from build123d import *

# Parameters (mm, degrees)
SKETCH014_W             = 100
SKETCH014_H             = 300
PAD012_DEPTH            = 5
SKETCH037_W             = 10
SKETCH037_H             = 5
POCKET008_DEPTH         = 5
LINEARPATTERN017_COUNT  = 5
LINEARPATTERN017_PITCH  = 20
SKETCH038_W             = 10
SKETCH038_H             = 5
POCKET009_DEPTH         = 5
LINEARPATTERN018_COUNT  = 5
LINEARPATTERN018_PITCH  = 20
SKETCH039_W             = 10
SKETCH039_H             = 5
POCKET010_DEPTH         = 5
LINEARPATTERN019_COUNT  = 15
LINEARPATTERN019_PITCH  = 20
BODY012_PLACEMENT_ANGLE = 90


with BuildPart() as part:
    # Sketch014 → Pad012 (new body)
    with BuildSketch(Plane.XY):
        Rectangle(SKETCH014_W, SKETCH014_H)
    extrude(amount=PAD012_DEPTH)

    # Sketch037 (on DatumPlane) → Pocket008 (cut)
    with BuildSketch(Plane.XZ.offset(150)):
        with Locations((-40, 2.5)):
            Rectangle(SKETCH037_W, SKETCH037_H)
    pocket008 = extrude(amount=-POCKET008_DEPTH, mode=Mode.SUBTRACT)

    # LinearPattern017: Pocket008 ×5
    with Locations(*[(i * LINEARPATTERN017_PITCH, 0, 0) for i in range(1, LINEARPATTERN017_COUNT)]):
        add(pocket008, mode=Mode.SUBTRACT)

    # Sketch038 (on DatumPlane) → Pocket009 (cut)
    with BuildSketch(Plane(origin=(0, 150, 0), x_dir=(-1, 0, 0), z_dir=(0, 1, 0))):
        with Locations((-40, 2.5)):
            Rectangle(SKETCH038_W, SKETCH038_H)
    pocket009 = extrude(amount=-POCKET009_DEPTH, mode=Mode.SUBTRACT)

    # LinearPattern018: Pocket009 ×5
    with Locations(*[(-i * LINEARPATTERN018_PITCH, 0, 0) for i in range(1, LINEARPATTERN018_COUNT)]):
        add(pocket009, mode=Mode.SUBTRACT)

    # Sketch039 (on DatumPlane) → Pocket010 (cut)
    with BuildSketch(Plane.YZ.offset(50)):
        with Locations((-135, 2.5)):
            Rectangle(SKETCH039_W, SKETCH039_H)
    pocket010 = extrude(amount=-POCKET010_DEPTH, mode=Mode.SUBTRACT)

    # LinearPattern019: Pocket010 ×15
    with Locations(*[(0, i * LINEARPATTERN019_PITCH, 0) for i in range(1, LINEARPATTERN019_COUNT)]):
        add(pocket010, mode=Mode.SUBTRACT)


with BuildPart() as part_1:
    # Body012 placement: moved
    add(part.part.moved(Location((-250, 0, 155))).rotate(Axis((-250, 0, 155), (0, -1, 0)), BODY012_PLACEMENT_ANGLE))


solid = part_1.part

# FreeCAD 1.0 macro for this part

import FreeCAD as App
import Part
import Sketcher
from FreeCAD import Vector

doc = App.newDocument("Part")
body = doc.addObject("PartDesign::Body", "Body")

# Sketch on XY plane
sketch1 = body.newObject("Sketcher::SketchObject", "Sketch")
sketch1.AttachmentSupport = (doc.getObject("XY_Plane"), [""])
sketch1.MapMode = "FlatFace"
sketch1.addGeometry(Part.LineSegment(Vector(-50, 150, 0), Vector(-50, -150, 0)), False)
sketch1.addGeometry(Part.LineSegment(Vector(-50, -150, 0), Vector(50, -150, 0)), False)
sketch1.addGeometry(Part.LineSegment(Vector(50, -150, 0), Vector(50, 150, 0)), False)
sketch1.addGeometry(Part.LineSegment(Vector(50, 150, 0), Vector(-50, 150, 0)), False)
sketch1.addConstraint(Sketcher.Constraint("Coincident", 0, 2, 1, 1))
sketch1.addConstraint(Sketcher.Constraint("Coincident", 1, 2, 2, 1))
sketch1.addConstraint(Sketcher.Constraint("Coincident", 2, 2, 3, 1))
sketch1.addConstraint(Sketcher.Constraint("Coincident", 3, 2, 0, 1))
sketch1.addConstraint(Sketcher.Constraint("Vertical", 0))
sketch1.addConstraint(Sketcher.Constraint("Horizontal", 1))
sketch1.addConstraint(Sketcher.Constraint("Vertical", 2))
sketch1.addConstraint(Sketcher.Constraint("Horizontal", 3))
sketch1.addConstraint(Sketcher.Constraint("Symmetric", 0, 2, 2, 2, -1, 1))
sketch1.addConstraint(Sketcher.Constraint("DistanceX", 1, 1, 1, 2, 100.0))
sketch1.addConstraint(Sketcher.Constraint("DistanceY", 0, 2, 0, 1, 300.0))
pad1 = body.newObject("PartDesign::Pad", "Pad")
pad1.Profile = sketch1
pad1.Length = 5

# Sketch on XZ plane
sketch2 = body.newObject("Sketcher::SketchObject", "Sketch001")
sketch2.AttachmentSupport = (doc.getObject("XZ_Plane"), [""])
sketch2.MapMode = "FlatFace"
sketch2.AttachmentOffset = App.Placement(Vector(0, 0, 150), App.Rotation())
sketch2.addGeometry(Part.LineSegment(Vector(-45, 5, 0), Vector(-45, 0, 0)), False)
sketch2.addGeometry(Part.LineSegment(Vector(-45, 0, 0), Vector(-35, 0, 0)), False)
sketch2.addGeometry(Part.LineSegment(Vector(-35, 0, 0), Vector(-35, 5, 0)), False)
sketch2.addGeometry(Part.LineSegment(Vector(-35, 5, 0), Vector(-45, 5, 0)), False)
sketch2.addConstraint(Sketcher.Constraint("Coincident", 0, 2, 1, 1))
sketch2.addConstraint(Sketcher.Constraint("Coincident", 1, 2, 2, 1))
sketch2.addConstraint(Sketcher.Constraint("Coincident", 2, 2, 3, 1))
sketch2.addConstraint(Sketcher.Constraint("Coincident", 3, 2, 0, 1))
sketch2.addConstraint(Sketcher.Constraint("Vertical", 0))
sketch2.addConstraint(Sketcher.Constraint("Horizontal", 1))
sketch2.addConstraint(Sketcher.Constraint("Vertical", 2))
sketch2.addConstraint(Sketcher.Constraint("Horizontal", 3))
sketch2.addConstraint(Sketcher.Constraint("PointOnObject", 0, 2, -1))
sketch2.addConstraint(Sketcher.Constraint("DistanceX", 1, 1, 1, 2, 10.0))
sketch2.addConstraint(Sketcher.Constraint("DistanceY", 0, 2, 0, 1, 5.0))
sketch2.addConstraint(Sketcher.Constraint("DistanceX", 0, 2, -1, 1, 45.0))
pocket1 = body.newObject("PartDesign::Pocket", "Pocket")
pocket1.Profile = sketch2
pocket1.Length = 5
doc.recompute()

linearpattern = body.newObject("PartDesign::LinearPattern", "LinearPattern")
linearpattern.Originals = [pocket1]
linearpattern.Direction = (doc.getObject("X_Axis"), [""])
linearpattern.Mode = "offset"
linearpattern.Offset = 20
linearpattern.Occurrences = 5
body.Tip = linearpattern

# Sketch on XZ plane
sketch3 = body.newObject("Sketcher::SketchObject", "Sketch002")
sketch3.AttachmentSupport = (doc.getObject("XZ_Plane"), [""])
sketch3.MapMode = "FlatFace"
sketch3.AttachmentOffset = App.Placement(Vector(0, 0, -150), App.Rotation())
sketch3.addGeometry(Part.LineSegment(Vector(45, 5, 0), Vector(45, 0, 0)), False)
sketch3.addGeometry(Part.LineSegment(Vector(45, 0, 0), Vector(35, 0, 0)), False)
sketch3.addGeometry(Part.LineSegment(Vector(35, 0, 0), Vector(35, 5, 0)), False)
sketch3.addGeometry(Part.LineSegment(Vector(35, 5, 0), Vector(45, 5, 0)), False)
sketch3.addConstraint(Sketcher.Constraint("Coincident", 0, 2, 1, 1))
sketch3.addConstraint(Sketcher.Constraint("Coincident", 1, 2, 2, 1))
sketch3.addConstraint(Sketcher.Constraint("Coincident", 2, 2, 3, 1))
sketch3.addConstraint(Sketcher.Constraint("Coincident", 3, 2, 0, 1))
sketch3.addConstraint(Sketcher.Constraint("Vertical", 0))
sketch3.addConstraint(Sketcher.Constraint("Horizontal", 1))
sketch3.addConstraint(Sketcher.Constraint("Vertical", 2))
sketch3.addConstraint(Sketcher.Constraint("Horizontal", 3))
sketch3.addConstraint(Sketcher.Constraint("PointOnObject", 0, 2, -1))
sketch3.addConstraint(Sketcher.Constraint("DistanceX", 1, 2, 1, 1, 10.0))
sketch3.addConstraint(Sketcher.Constraint("DistanceY", 0, 2, 0, 1, 5.0))
sketch3.addConstraint(Sketcher.Constraint("DistanceX", -1, 1, 0, 2, 45.0))
pocket2 = body.newObject("PartDesign::Pocket", "Pocket001")
pocket2.Profile = sketch3
pocket2.Length = 5
pocket2.Reversed = True
doc.recompute()

linearpattern2 = body.newObject("PartDesign::LinearPattern", "LinearPattern001")
linearpattern2.Originals = [pocket2]
linearpattern2.Direction = (doc.getObject("X_Axis"), [""])
linearpattern2.Mode = "offset"
linearpattern2.Offset = 20
linearpattern2.Occurrences = 5
linearpattern2.Reversed = True
body.Tip = linearpattern2

# Sketch on YZ plane
sketch4 = body.newObject("Sketcher::SketchObject", "Sketch003")
sketch4.AttachmentSupport = (doc.getObject("YZ_Plane"), [""])
sketch4.MapMode = "FlatFace"
sketch4.AttachmentOffset = App.Placement(Vector(0, 0, 50), App.Rotation())
sketch4.addGeometry(Part.LineSegment(Vector(-140, 5, 0), Vector(-140, 0, 0)), False)
sketch4.addGeometry(Part.LineSegment(Vector(-140, 0, 0), Vector(-130, 0, 0)), False)
sketch4.addGeometry(Part.LineSegment(Vector(-130, 0, 0), Vector(-130, 5, 0)), False)
sketch4.addGeometry(Part.LineSegment(Vector(-130, 5, 0), Vector(-140, 5, 0)), False)
sketch4.addConstraint(Sketcher.Constraint("Coincident", 0, 2, 1, 1))
sketch4.addConstraint(Sketcher.Constraint("Coincident", 1, 2, 2, 1))
sketch4.addConstraint(Sketcher.Constraint("Coincident", 2, 2, 3, 1))
sketch4.addConstraint(Sketcher.Constraint("Coincident", 3, 2, 0, 1))
sketch4.addConstraint(Sketcher.Constraint("Vertical", 0))
sketch4.addConstraint(Sketcher.Constraint("Horizontal", 1))
sketch4.addConstraint(Sketcher.Constraint("Vertical", 2))
sketch4.addConstraint(Sketcher.Constraint("Horizontal", 3))
sketch4.addConstraint(Sketcher.Constraint("PointOnObject", 0, 2, -1))
sketch4.addConstraint(Sketcher.Constraint("DistanceX", 1, 1, 1, 2, 10.0))
sketch4.addConstraint(Sketcher.Constraint("DistanceY", 0, 2, 0, 1, 5.0))
sketch4.addConstraint(Sketcher.Constraint("DistanceX", 0, 2, -1, 1, 140.0))
pocket3 = body.newObject("PartDesign::Pocket", "Pocket002")
pocket3.Profile = sketch4
pocket3.Length = 5
doc.recompute()

linearpattern3 = body.newObject("PartDesign::LinearPattern", "LinearPattern002")
linearpattern3.Originals = [pocket3]
linearpattern3.Direction = (doc.getObject("Y_Axis"), [""])
linearpattern3.Mode = "offset"
linearpattern3.Offset = 20
linearpattern3.Occurrences = 15
body.Tip = linearpattern3
body2 = doc.addObject("PartDesign::Body", "Body001")
doc.recompute()

body.Placement = App.Placement(Vector(-250, 0, 155), App.Rotation(Vector(0, -1, 0), 90))
boolean = body2.newObject("PartDesign::Boolean", "Boolean")
boolean.Type = "Fuse"
boolean.addObjects([body])

doc.recompute()
